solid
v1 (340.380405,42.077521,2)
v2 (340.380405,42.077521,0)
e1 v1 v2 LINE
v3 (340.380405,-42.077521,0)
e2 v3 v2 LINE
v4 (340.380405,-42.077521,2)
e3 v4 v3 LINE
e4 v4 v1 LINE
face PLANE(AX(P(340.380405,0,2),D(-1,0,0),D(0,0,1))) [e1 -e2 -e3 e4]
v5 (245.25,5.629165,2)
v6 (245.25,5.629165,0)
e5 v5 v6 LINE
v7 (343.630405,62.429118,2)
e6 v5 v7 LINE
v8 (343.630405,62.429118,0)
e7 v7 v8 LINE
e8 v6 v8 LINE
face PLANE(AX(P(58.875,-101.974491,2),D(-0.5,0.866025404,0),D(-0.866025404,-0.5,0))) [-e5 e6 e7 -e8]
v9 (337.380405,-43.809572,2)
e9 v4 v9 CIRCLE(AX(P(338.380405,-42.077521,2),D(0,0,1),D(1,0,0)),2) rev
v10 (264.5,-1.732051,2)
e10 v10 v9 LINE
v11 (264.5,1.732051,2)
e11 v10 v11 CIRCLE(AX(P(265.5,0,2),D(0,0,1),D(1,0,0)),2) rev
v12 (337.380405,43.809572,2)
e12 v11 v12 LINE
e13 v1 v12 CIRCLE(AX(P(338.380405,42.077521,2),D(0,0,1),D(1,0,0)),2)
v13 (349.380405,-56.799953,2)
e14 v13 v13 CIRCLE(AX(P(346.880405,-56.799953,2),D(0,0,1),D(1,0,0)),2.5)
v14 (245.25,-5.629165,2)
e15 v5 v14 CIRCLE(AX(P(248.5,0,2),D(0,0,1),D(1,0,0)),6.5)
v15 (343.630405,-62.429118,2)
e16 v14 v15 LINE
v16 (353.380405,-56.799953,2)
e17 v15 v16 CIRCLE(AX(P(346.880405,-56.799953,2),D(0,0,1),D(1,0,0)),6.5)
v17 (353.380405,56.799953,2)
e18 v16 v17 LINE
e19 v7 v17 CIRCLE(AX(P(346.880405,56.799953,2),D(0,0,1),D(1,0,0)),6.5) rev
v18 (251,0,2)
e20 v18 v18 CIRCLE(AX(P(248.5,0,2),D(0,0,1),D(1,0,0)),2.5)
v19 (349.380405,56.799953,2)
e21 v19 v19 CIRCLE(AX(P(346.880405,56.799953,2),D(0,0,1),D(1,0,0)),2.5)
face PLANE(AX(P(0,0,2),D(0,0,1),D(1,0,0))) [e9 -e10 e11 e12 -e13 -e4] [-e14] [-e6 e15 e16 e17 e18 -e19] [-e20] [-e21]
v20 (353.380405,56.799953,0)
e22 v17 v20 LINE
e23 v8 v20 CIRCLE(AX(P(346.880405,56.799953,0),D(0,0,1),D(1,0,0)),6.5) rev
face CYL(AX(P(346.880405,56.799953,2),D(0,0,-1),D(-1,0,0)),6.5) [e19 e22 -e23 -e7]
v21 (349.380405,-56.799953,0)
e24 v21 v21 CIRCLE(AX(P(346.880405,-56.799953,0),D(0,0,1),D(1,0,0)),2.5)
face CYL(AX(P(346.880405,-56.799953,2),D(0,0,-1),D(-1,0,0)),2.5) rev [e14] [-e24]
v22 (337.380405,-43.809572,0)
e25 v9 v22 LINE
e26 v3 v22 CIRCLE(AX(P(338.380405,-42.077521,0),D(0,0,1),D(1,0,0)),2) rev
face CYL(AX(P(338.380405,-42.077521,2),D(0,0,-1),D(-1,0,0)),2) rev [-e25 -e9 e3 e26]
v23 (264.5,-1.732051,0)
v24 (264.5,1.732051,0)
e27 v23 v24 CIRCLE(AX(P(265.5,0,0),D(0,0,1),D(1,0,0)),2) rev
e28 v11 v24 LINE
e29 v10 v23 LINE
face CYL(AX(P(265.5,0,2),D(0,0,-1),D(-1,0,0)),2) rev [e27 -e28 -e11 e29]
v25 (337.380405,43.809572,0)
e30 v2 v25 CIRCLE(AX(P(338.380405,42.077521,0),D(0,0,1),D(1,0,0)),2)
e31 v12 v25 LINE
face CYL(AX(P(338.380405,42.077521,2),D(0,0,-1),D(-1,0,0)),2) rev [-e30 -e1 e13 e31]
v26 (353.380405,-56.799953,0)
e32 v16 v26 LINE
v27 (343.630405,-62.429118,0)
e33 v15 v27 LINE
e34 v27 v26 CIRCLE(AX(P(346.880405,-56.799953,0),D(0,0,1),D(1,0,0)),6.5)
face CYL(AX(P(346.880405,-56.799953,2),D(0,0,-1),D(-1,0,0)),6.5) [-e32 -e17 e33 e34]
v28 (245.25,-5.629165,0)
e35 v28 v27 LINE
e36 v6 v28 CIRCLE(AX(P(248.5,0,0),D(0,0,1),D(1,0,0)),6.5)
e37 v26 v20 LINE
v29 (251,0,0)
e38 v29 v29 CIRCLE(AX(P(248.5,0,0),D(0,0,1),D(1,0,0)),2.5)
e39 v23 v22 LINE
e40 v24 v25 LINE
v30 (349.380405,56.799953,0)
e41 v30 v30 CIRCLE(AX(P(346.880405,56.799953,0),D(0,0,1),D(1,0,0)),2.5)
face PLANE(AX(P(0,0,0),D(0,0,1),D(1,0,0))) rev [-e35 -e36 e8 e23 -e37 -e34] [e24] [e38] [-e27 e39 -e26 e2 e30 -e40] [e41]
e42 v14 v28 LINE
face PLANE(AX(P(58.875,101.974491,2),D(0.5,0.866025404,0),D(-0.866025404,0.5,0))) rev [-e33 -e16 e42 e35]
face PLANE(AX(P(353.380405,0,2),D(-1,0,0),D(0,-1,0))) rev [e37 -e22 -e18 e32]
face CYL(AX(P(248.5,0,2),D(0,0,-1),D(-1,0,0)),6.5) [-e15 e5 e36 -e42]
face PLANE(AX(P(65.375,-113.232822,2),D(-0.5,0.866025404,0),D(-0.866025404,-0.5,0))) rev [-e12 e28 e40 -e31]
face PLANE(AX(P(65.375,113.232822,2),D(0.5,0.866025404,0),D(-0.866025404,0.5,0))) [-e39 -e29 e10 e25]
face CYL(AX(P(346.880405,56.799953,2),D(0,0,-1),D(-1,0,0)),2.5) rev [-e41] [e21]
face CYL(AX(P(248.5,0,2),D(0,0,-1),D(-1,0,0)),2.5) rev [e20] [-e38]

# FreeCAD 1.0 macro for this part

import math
import FreeCAD as App
import Part
import Sketcher
from FreeCAD import Vector
Q = App.Units.Quantity

doc = App.newDocument("Part")
body = doc.addObject("PartDesign::Body", "Body")

sketch1 = body.newObject("Sketcher::SketchObject", "Sketch")
sketch1.AttachmentSupport = (doc.getObject("XY_Plane"), [""])
sketch1.MapMode = "FlatFace"
sketch1.addGeometry(Part.LineSegment(Vector(245.2, -5.6, 0), Vector(343.6, -62.4, 0)), False)
sketch1.addGeometry(Part.ArcOfCircle(Part.Circle(Vector(346.9, -56.8, 0), Vector(0, 0, 1), 6.5), math.radians(-120), math.radians(0)), False)
sketch1.addGeometry(Part.LineSegment(Vector(353.4, -56.8, 0), Vector(353.4, 56.8, 0)), False)
sketch1.addGeometry(Part.ArcOfCircle(Part.Circle(Vector(346.9, 56.8, 0), Vector(0, 0, 1), 6.5), math.radians(0), math.radians(120)), False)
sketch1.addGeometry(Part.LineSegment(Vector(343.6, 62.4, 0), Vector(245.2, 5.6, 0)), False)
sketch1.addGeometry(Part.ArcOfCircle(Part.Circle(Vector(248.5, 0, 0), Vector(0, 0, 1), 6.5), math.radians(120), math.radians(240)), False)
sketch1.addGeometry(Part.Circle(Vector(346.9, -56.8, 0), Vector(0, 0, 1), 2.5), False)
sketch1.addGeometry(Part.Circle(Vector(248.5, 0, 0), Vector(0, 0, 1), 2.5), False)
sketch1.addGeometry(Part.ArcOfCircle(Part.Circle(Vector(265.5, 0, 0), Vector(0, 0, 1), 2), math.radians(120), math.radians(240)), False)
sketch1.addGeometry(Part.LineSegment(Vector(264.5, 1.7, 0), Vector(337.4, 43.8, 0)), False)
sketch1.addGeometry(Part.ArcOfCircle(Part.Circle(Vector(338.4, 42.1, 0), Vector(0, 0, 1), 2), math.radians(0), math.radians(120)), False)
sketch1.addGeometry(Part.LineSegment(Vector(340.4, 42.1, 0), Vector(340.4, -42.1, 0)), False)
sketch1.addGeometry(Part.ArcOfCircle(Part.Circle(Vector(338.4, -42.1, 0), Vector(0, 0, 1), 2), math.radians(-120), math.radians(0)), False)
sketch1.addGeometry(Part.LineSegment(Vector(337.4, -43.8, 0), Vector(264.5, -1.7, 0)), False)
sketch1.addGeometry(Part.Circle(Vector(346.9, 56.8, 0), Vector(0, 0, 1), 2.5), False)
sketch1.addConstraint(Sketcher.Constraint("Tangent", 0, 2, 1, 1))
sketch1.addConstraint(Sketcher.Constraint("Tangent", 1, 2, 2, 1))
sketch1.addConstraint(Sketcher.Constraint("Tangent", 2, 2, 3, 1))
sketch1.addConstraint(Sketcher.Constraint("Tangent", 3, 2, 4, 1))
sketch1.addConstraint(Sketcher.Constraint("Tangent", 4, 2, 5, 1))
sketch1.addConstraint(Sketcher.Constraint("Tangent", 5, 2, 0, 1))
sketch1.addConstraint(Sketcher.Constraint("Tangent", 8, 1, 9, 1))
sketch1.addConstraint(Sketcher.Constraint("Tangent", 9, 2, 10, 2))
sketch1.addConstraint(Sketcher.Constraint("Tangent", 10, 1, 11, 1))
sketch1.addConstraint(Sketcher.Constraint("Tangent", 11, 2, 12, 2))
sketch1.addConstraint(Sketcher.Constraint("Tangent", 12, 1, 13, 1))
sketch1.addConstraint(Sketcher.Constraint("Tangent", 13, 2, 8, 2))
sketch1.addConstraint(Sketcher.Constraint("Vertical", 2))
sketch1.addConstraint(Sketcher.Constraint("Vertical", 11))
sketch1.addConstraint(Sketcher.Constraint("Coincident", 6, 3, 1, 3))
sketch1.addConstraint(Sketcher.Constraint("Coincident", 7, 3, 5, 3))
sketch1.addConstraint(Sketcher.Constraint("Coincident", 14, 3, 3, 3))
sketch1.addConstraint(Sketcher.Constraint("Equal", 1, 3))
sketch1.addConstraint(Sketcher.Constraint("Equal", 3, 5))
sketch1.addConstraint(Sketcher.Constraint("Equal", 6, 7))
sketch1.addConstraint(Sketcher.Constraint("Equal", 8, 10))
sketch1.addConstraint(Sketcher.Constraint("Equal", 10, 12))
sketch1.addConstraint(Sketcher.Constraint("Equal", 7, 14))
sketch1.addConstraint(Sketcher.Constraint("Symmetric", 0, 2, 3, 2, -1))
sketch1.addConstraint(Sketcher.Constraint("Symmetric", 9, 2, 12, 1, -1))
sketch1.addConstraint(Sketcher.Constraint("Parallel", 4, 9))
sketch1.addConstraint(Sketcher.Constraint("Diameter", 6, Q("5 mm")))
sketch1.addConstraint(Sketcher.Constraint("Radius", 8, Q("2 mm")))
sketch1.addConstraint(Sketcher.Constraint("Radius", 1, Q("6.5 mm")))
sketch1.addConstraint(Sketcher.Constraint("Angle", 0, Q("-30 deg")))
sketch1.addConstraint(Sketcher.Constraint("DistanceX", 5, 3, 8, 3, Q("17 mm")))
sketch1.addConstraint(Sketcher.Constraint("DistanceX", 12, 3, 1, 2, Q("15 mm")))
sketch1.addConstraint(Sketcher.Constraint("DistanceX", -1, 1, 5, 3, Q("248.5 mm")))
sketch1.addConstraint(Sketcher.Constraint("DistanceY", 2, 1, 2, 2, Q("113.599907 mm")))
pad1 = body.newObject("PartDesign::Pad", "Pad")
pad1.Profile = sketch1
pad1.Length = 2

doc.recompute()
